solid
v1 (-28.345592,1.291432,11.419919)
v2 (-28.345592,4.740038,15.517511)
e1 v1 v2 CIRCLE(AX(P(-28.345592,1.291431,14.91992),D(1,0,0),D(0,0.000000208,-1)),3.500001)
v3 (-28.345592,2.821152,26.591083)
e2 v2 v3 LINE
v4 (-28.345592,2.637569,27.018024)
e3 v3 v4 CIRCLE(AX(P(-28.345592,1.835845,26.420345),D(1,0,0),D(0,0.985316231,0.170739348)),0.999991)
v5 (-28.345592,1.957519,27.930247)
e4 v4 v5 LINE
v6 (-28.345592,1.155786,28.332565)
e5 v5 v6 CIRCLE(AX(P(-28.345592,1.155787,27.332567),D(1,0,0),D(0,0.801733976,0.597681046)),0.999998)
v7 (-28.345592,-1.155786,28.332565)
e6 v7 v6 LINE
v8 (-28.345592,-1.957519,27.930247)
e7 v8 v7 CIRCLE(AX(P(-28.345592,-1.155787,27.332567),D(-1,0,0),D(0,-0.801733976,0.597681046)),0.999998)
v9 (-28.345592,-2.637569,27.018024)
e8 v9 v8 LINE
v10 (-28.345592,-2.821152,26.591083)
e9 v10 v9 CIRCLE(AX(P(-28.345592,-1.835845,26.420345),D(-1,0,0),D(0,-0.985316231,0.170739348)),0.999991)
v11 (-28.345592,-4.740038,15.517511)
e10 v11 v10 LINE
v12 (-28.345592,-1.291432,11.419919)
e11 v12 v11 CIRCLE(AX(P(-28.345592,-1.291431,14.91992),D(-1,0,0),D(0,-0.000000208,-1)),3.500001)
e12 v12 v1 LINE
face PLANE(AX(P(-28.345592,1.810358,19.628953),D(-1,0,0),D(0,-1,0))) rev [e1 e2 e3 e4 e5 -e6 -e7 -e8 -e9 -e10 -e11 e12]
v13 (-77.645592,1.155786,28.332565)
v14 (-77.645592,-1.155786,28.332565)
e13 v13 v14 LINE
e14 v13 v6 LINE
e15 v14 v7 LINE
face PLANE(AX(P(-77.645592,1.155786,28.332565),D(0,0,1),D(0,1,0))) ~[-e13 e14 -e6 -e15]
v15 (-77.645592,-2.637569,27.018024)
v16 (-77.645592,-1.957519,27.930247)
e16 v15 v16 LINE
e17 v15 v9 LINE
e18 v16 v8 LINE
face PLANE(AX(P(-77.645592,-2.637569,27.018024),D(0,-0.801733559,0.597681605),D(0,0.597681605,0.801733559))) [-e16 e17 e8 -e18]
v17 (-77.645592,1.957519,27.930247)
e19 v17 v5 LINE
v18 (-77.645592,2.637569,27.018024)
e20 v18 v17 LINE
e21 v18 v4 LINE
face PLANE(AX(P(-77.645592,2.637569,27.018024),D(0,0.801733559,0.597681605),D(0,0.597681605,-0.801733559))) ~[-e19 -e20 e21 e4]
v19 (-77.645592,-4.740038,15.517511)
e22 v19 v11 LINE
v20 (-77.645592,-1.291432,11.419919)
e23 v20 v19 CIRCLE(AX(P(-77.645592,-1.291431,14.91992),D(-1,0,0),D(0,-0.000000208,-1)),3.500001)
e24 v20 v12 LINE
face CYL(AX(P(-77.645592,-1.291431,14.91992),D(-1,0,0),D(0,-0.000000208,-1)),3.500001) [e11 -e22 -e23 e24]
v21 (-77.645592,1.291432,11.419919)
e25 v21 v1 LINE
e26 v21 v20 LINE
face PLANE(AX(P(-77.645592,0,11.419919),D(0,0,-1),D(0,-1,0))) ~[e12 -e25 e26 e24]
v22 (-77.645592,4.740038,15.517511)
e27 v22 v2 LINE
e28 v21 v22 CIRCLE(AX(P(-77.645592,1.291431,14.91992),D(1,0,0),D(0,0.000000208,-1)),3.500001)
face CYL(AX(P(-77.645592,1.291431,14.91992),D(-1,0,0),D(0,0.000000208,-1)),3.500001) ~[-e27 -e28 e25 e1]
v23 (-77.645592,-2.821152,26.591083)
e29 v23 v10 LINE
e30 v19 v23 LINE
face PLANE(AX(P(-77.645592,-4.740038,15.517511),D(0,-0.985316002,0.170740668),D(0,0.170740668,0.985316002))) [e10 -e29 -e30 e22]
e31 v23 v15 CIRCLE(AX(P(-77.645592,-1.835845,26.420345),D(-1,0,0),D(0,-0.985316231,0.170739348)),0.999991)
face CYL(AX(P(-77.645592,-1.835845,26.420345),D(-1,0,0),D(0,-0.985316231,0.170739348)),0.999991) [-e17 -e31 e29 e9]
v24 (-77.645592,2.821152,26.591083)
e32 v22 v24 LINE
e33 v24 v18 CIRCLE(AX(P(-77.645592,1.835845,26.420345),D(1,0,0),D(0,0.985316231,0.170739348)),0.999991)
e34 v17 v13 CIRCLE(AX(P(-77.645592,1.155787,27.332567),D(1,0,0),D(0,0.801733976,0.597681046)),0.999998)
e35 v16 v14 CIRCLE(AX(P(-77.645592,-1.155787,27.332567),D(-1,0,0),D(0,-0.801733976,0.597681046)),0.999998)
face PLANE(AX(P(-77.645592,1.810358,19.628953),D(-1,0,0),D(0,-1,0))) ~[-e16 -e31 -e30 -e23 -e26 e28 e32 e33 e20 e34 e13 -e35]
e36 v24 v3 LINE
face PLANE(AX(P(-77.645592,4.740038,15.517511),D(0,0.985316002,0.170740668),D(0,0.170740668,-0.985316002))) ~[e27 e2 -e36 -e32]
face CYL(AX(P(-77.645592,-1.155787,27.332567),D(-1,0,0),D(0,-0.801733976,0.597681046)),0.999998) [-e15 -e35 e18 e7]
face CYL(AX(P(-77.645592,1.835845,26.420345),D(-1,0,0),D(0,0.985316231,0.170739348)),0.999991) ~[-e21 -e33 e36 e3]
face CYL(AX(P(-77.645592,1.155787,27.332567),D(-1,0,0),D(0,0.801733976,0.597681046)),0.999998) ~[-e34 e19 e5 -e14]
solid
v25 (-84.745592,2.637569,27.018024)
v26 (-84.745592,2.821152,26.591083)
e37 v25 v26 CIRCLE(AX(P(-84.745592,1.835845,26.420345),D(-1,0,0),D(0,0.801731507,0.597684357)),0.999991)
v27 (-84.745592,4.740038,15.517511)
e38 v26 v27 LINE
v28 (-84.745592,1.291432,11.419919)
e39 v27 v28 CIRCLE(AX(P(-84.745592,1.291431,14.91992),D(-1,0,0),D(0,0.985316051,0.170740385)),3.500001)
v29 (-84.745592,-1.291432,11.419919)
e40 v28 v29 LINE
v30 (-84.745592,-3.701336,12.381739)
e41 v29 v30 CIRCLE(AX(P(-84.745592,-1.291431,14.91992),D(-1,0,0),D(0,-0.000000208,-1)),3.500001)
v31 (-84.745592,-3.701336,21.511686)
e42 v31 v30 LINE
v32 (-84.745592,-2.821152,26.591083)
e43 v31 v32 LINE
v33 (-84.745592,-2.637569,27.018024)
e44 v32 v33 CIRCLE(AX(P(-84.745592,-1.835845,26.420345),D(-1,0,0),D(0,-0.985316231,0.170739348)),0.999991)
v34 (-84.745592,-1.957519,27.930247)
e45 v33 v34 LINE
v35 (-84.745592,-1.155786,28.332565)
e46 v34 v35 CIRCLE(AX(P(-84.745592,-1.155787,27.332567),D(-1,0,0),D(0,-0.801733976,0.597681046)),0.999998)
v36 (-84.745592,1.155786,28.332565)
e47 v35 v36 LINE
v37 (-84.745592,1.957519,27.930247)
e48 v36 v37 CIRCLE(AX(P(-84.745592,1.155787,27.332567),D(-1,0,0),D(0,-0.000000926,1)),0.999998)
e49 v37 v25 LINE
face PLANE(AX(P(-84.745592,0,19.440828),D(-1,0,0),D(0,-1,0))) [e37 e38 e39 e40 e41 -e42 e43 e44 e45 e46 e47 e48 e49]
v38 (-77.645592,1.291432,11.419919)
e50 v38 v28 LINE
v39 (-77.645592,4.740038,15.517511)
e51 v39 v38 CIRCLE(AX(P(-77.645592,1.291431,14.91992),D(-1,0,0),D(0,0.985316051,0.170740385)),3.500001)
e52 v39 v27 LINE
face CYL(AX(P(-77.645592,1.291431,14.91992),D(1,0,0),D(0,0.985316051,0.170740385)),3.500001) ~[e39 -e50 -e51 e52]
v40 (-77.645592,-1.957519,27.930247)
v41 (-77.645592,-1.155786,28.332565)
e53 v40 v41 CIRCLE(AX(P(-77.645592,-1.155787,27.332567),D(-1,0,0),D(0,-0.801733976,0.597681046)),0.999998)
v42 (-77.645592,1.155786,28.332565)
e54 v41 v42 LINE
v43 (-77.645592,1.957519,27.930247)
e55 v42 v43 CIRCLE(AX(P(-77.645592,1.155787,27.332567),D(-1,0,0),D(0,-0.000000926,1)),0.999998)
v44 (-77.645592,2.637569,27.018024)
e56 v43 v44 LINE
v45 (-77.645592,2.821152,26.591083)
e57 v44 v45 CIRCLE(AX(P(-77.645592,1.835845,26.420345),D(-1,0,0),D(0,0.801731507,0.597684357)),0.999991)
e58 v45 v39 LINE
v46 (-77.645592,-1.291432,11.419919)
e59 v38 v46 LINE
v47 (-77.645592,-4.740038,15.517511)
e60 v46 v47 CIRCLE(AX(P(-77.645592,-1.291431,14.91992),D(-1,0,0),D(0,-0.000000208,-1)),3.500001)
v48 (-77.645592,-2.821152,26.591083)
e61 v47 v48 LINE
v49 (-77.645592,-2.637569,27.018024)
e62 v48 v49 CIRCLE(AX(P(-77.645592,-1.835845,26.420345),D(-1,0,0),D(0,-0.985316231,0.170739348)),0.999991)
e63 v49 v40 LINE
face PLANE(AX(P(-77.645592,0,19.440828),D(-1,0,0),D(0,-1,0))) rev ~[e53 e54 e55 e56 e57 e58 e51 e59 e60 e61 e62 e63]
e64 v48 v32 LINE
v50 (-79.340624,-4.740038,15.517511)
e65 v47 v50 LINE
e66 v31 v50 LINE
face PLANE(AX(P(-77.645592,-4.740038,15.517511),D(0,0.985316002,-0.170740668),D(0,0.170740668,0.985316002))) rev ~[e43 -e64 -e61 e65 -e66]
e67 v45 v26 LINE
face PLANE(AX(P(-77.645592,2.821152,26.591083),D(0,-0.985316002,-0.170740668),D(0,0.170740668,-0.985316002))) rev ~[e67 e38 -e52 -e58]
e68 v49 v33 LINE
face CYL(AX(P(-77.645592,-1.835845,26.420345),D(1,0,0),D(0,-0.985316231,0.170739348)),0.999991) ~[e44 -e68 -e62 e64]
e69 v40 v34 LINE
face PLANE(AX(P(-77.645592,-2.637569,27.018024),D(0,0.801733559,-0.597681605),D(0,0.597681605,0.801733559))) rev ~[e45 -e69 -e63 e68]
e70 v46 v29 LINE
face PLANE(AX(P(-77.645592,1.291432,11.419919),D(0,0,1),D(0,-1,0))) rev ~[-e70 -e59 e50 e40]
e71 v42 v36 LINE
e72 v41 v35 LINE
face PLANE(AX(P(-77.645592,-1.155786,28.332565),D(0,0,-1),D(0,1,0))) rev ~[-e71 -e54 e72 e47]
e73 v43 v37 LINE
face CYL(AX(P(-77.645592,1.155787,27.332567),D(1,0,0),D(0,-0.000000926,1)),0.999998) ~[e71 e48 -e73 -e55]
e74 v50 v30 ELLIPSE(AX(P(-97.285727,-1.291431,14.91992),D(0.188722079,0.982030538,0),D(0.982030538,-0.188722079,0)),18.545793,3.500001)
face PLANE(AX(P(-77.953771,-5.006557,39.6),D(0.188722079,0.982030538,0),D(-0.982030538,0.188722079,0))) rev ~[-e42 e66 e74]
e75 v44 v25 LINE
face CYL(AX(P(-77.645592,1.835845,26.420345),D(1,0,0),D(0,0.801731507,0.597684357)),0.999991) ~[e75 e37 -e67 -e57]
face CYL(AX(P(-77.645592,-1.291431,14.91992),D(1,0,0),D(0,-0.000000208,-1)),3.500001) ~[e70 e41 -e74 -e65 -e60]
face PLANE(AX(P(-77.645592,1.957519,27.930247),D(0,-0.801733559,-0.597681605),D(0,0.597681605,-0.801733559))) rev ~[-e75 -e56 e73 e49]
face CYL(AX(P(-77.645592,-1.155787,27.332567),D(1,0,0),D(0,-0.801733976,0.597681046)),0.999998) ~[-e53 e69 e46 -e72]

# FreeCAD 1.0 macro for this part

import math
import FreeCAD as App
import Part
import Sketcher
from FreeCAD import Vector


def add_polygon(sketch, points):
    """Adds a closed chain of lines whose ends are joined by coincident constraints."""
    first, n = sketch.GeometryCount, len(points)
    for a, b in zip(points, points[1:] + points[:1]):
        sketch.addGeometry(Part.LineSegment(App.Vector(*a, 0), App.Vector(*b, 0)), False)
    for i in range(n):
        sketch.addConstraint(Sketcher.Constraint("Coincident", first + i, 2, first + (i + 1) % n, 1))

doc = App.newDocument("Part")
body = doc.addObject("PartDesign::Body", "Body")

# Sketch on YZ plane
sketch1 = body.newObject("Sketcher::SketchObject", "Sketch")
sketch1.AttachmentSupport = (doc.getObject("YZ_Plane"), [""])
sketch1.MapMode = "FlatFace"
sketch1.AttachmentOffset = App.Placement(Vector(0, 0, -77.645592), App.Rotation())
sketch1.addGeometry(Part.LineSegment(Vector(-1.16, 28.33, 0), Vector(0, 28.33, 0)), False)
sketch1.addGeometry(Part.LineSegment(Vector(0, 28.33, 0), Vector(0, 11.42, 0)), False)
sketch1.addGeometry(Part.LineSegment(Vector(0, 11.42, 0), Vector(-1.29, 11.42, 0)), False)
sketch1.addGeometry(Part.ArcOfCircle(Part.Circle(Vector(-1.29, 14.92, 0), Vector(0, 0, 1), 3.5), math.radians(170), math.radians(270)), False)
sketch1.addGeometry(Part.LineSegment(Vector(-4.74, 15.52, 0), Vector(-2.82, 26.59, 0)), False)
sketch1.addGeometry(Part.ArcOfCircle(Part.Circle(Vector(-1.84, 26.42, 0), Vector(0, 0, 1), 1), math.radians(143), math.radians(170)), False)
sketch1.addGeometry(Part.LineSegment(Vector(-2.64, 27.02, 0), Vector(-1.96, 27.93, 0)), False)
sketch1.addGeometry(Part.ArcOfCircle(Part.Circle(Vector(-1.16, 27.33, 0), Vector(0, 0, 1), 1), math.radians(90), math.radians(143)), False)
sketch1.addConstraint(Sketcher.Constraint("Coincident", 0, 2, 1, 1))
sketch1.addConstraint(Sketcher.Constraint("Coincident", 1, 2, 2, 1))
sketch1.addConstraint(Sketcher.Constraint("Tangent", 2, 2, 3, 2))
sketch1.addConstraint(Sketcher.Constraint("Tangent", 3, 1, 4, 1))
sketch1.addConstraint(Sketcher.Constraint("Tangent", 4, 2, 5, 2))
sketch1.addConstraint(Sketcher.Constraint("Coincident", 5, 1, 6, 1))
sketch1.addConstraint(Sketcher.Constraint("Tangent", 6, 2, 7, 2))
sketch1.addConstraint(Sketcher.Constraint("Tangent", 7, 1, 0, 1))
sketch1.addConstraint(Sketcher.Constraint("Horizontal", 0))
sketch1.addConstraint(Sketcher.Constraint("Vertical", 1))
sketch1.addConstraint(Sketcher.Constraint("Horizontal", 2))
sketch1.addConstraint(Sketcher.Constraint("PointOnObject", 0, 2, -2))
sketch1.addConstraint(Sketcher.Constraint("Radius", 3, 3.500001))
sketch1.addConstraint(Sketcher.Constraint("Radius", 5, 0.999991))
sketch1.addConstraint(Sketcher.Constraint("Radius", 7, 0.999998))
sketch1.addConstraint(Sketcher.Constraint("Distance", 4, 11.2386))
sketch1.addConstraint(Sketcher.Constraint("DistanceX", 2, 2, 2, 1, 1.291432))
sketch1.addConstraint(Sketcher.Constraint("DistanceY", 5, 3, 6, 2, 1.509902))
sketch1.addConstraint(Sketcher.Constraint("DistanceX", 0, 1, 0, 2, 1.155786))
sketch1.addConstraint(Sketcher.Constraint("DistanceY", 1, 2, 1, 1, 16.912646))
sketch1.addConstraint(Sketcher.Constraint("DistanceY", -1, 1, 3, 3, 14.91992))
sketch1.addConstraint(Sketcher.Constraint("DistanceX", 5, 1, -1, 1, 2.637569))
pad1 = body.newObject("PartDesign::Pad", "Pad")
pad1.Profile = sketch1
pad1.Length = 49.3
body2 = doc.addObject("PartDesign::Body", "Body001")
doc.recompute()

body2.BaseFeature = body
doc.recompute()

mirroring = doc.addObject("Part::Mirroring", "Mirroring")
mirroring.Source = body
mirroring.Base = Vector(-52.995592, 0, 19.876242)
mirroring.Normal = Vector(0, 1, 0)
body3 = doc.addObject("PartDesign::Body", "Body002")
body3.BaseFeature = mirroring
boolean = body2.newObject("PartDesign::Boolean", "Boolean")
boolean.Type = "Fuse"
boolean.addObjects([body3])
doc.recompute()
body4 = doc.addObject("PartDesign::Body", "Body003")

# Sketch on YZ plane
sketch2 = body4.newObject("Sketcher::SketchObject", "Sketch001")
sketch2.AttachmentSupport = (doc.getObject("YZ_Plane003"), [""])
sketch2.MapMode = "FlatFace"
sketch2.AttachmentOffset = App.Placement(Vector(0, 0, -77.645592), App.Rotation())
sketch2.addGeometry(Part.ArcOfCircle(Part.Circle(Vector(-1.16, 27.33, 0), Vector(0, 0, 1), 1), math.radians(90), math.radians(143)), False)
sketch2.addGeometry(Part.LineSegment(Vector(-1.16, 28.33, 0), Vector(1.16, 28.33, 0)), False)
sketch2.addGeometry(Part.ArcOfCircle(Part.Circle(Vector(1.16, 27.33, 0), Vector(0, 0, 1), 1), math.radians(37), math.radians(90)), False)
sketch2.addGeometry(Part.LineSegment(Vector(1.96, 27.93, 0), Vector(2.64, 27.02, 0)), False)
sketch2.addGeometry(Part.ArcOfCircle(Part.Circle(Vector(1.84, 26.42, 0), Vector(0, 0, 1), 1), math.radians(10), math.radians(37)), False)
sketch2.addGeometry(Part.LineSegment(Vector(2.82, 26.59, 0), Vector(4.74, 15.52, 0)), False)
sketch2.addGeometry(Part.ArcOfCircle(Part.Circle(Vector(1.29, 14.92, 0), Vector(0, 0, 1), 3.5), math.radians(-90), math.radians(10)), False)
sketch2.addGeometry(Part.LineSegment(Vector(1.29, 11.42, 0), Vector(-1.29, 11.42, 0)), False)
sketch2.addGeometry(Part.ArcOfCircle(Part.Circle(Vector(-1.29, 14.92, 0), Vector(0, 0, 1), 3.5), math.radians(170), math.radians(270)), False)
sketch2.addGeometry(Part.LineSegment(Vector(-4.74, 15.52, 0), Vector(-2.82, 26.59, 0)), False)
sketch2.addGeometry(Part.ArcOfCircle(Part.Circle(Vector(-1.84, 26.42, 0), Vector(0, 0, 1), 1), math.radians(143), math.radians(170)), False)
sketch2.addGeometry(Part.LineSegment(Vector(-2.64, 27.02, 0), Vector(-1.96, 27.93, 0)), False)
sketch2.addConstraint(Sketcher.Constraint("Tangent", 0, 1, 1, 1))
sketch2.addConstraint(Sketcher.Constraint("Tangent", 1, 2, 2, 2))
sketch2.addConstraint(Sketcher.Constraint("Tangent", 2, 1, 3, 1))
sketch2.addConstraint(Sketcher.Constraint("Coincident", 3, 2, 4, 2))
sketch2.addConstraint(Sketcher.Constraint("Tangent", 4, 1, 5, 1))
sketch2.addConstraint(Sketcher.Constraint("Tangent", 5, 2, 6, 2))
sketch2.addConstraint(Sketcher.Constraint("Tangent", 6, 1, 7, 1))
sketch2.addConstraint(Sketcher.Constraint("Tangent", 7, 2, 8, 2))
sketch2.addConstraint(Sketcher.Constraint("Tangent", 8, 1, 9, 1))
sketch2.addConstraint(Sketcher.Constraint("Tangent", 9, 2, 10, 2))
sketch2.addConstraint(Sketcher.Constraint("Coincident", 10, 1, 11, 1))
sketch2.addConstraint(Sketcher.Constraint("Tangent", 11, 2, 0, 2))
sketch2.addConstraint(Sketcher.Constraint("Horizontal", 1))
sketch2.addConstraint(Sketcher.Constraint("Horizontal", 7))
sketch2.addConstraint(Sketcher.Constraint("Equal", 0, 2))
sketch2.addConstraint(Sketcher.Constraint("Equal", 6, 8))
sketch2.addConstraint(Sketcher.Constraint("Equal", 4, 10))
sketch2.addConstraint(Sketcher.Constraint("Symmetric", 4, 3, 10, 3, -2))
sketch2.addConstraint(Sketcher.Constraint("Horizontal", 5, 2, 8, 1))
sketch2.addConstraint(Sketcher.Constraint("Horizontal", 3, 2, 10, 1))
sketch2.addConstraint(Sketcher.Constraint("Horizontal", 2, 1, 11, 2))
sketch2.addConstraint(Sketcher.Constraint("Radius", 6, 3.500001))
sketch2.addConstraint(Sketcher.Constraint("Radius", 4, 0.999991))
sketch2.addConstraint(Sketcher.Constraint("Radius", 0, 0.999998))
sketch2.addConstraint(Sketcher.Constraint("Distance", 5, 11.2386))
sketch2.addConstraint(Sketcher.Constraint("DistanceX", 1, 1, 1, 2, 2.311572))
sketch2.addConstraint(Sketcher.Constraint("DistanceY", 4, 3, 2, 1, 1.509902))
sketch2.addConstraint(Sketcher.Constraint("DistanceX", 7, 2, 7, 1, 2.582864))
sketch2.addConstraint(Sketcher.Constraint("DistanceY", -1, 1, 6, 3, 14.91992))
sketch2.addConstraint(Sketcher.Constraint("DistanceX", -1, 1, 2, 1, 1.957519))
sketch2.addConstraint(Sketcher.Constraint("DistanceX", -1, 1, 3, 2, 2.637569))
pad2 = body4.newObject("PartDesign::Pad", "Pad001")
pad2.Profile = sketch2
pad2.Length = 7.1
pad2.Reversed = True

# Sketch on XY plane
sketch3 = body4.newObject("Sketcher::SketchObject", "Sketch002")
sketch3.AttachmentSupport = (doc.getObject("XY_Plane003"), [""])
sketch3.MapMode = "FlatFace"
sketch3.AttachmentOffset = App.Placement(Vector(0, 0, 39.6), App.Rotation())
add_polygon(sketch3, [(-78, -5), (-85.3, -3.6), (-88.3, -6.1), (-83.7, -8.2), (-78.5, -8.4)])  # lines 0-4
sketch3.addConstraint(Sketcher.Constraint("Distance", 2, 5.068991))
sketch3.addConstraint(Sketcher.Constraint("Distance", 4, 3.43155))
sketch3.addConstraint(Sketcher.Constraint("DistanceX", 0, 2, -1, 1, 85.29786))
sketch3.addConstraint(Sketcher.Constraint("DistanceY", 1, 2, -1, 1, 6.052011))
sketch3.addConstraint(Sketcher.Constraint("DistanceX", 3, 2, -1, 1, 78.498788))
sketch3.addConstraint(Sketcher.Constraint("DistanceY", 3, 2, -1, 1, 8.394549))
sketch3.addConstraint(Sketcher.Constraint("DistanceX", 4, 2, -1, 1, 77.953771))
sketch3.addConstraint(Sketcher.Constraint("DistanceY", 2, 2, 0, 2, 4.556521))
sketch3.addConstraint(Sketcher.Constraint("DistanceX", 1, 2, 2, 2, 4.613661))
sketch3.addConstraint(Sketcher.Constraint("DistanceX", 2, 2, 4, 2, 5.715742))
pocket1 = body4.newObject("PartDesign::Pocket", "Pocket")
pocket1.Profile = sketch3
pocket1.Length = 32.13
mirroring.Visibility = False

doc.recompute()
